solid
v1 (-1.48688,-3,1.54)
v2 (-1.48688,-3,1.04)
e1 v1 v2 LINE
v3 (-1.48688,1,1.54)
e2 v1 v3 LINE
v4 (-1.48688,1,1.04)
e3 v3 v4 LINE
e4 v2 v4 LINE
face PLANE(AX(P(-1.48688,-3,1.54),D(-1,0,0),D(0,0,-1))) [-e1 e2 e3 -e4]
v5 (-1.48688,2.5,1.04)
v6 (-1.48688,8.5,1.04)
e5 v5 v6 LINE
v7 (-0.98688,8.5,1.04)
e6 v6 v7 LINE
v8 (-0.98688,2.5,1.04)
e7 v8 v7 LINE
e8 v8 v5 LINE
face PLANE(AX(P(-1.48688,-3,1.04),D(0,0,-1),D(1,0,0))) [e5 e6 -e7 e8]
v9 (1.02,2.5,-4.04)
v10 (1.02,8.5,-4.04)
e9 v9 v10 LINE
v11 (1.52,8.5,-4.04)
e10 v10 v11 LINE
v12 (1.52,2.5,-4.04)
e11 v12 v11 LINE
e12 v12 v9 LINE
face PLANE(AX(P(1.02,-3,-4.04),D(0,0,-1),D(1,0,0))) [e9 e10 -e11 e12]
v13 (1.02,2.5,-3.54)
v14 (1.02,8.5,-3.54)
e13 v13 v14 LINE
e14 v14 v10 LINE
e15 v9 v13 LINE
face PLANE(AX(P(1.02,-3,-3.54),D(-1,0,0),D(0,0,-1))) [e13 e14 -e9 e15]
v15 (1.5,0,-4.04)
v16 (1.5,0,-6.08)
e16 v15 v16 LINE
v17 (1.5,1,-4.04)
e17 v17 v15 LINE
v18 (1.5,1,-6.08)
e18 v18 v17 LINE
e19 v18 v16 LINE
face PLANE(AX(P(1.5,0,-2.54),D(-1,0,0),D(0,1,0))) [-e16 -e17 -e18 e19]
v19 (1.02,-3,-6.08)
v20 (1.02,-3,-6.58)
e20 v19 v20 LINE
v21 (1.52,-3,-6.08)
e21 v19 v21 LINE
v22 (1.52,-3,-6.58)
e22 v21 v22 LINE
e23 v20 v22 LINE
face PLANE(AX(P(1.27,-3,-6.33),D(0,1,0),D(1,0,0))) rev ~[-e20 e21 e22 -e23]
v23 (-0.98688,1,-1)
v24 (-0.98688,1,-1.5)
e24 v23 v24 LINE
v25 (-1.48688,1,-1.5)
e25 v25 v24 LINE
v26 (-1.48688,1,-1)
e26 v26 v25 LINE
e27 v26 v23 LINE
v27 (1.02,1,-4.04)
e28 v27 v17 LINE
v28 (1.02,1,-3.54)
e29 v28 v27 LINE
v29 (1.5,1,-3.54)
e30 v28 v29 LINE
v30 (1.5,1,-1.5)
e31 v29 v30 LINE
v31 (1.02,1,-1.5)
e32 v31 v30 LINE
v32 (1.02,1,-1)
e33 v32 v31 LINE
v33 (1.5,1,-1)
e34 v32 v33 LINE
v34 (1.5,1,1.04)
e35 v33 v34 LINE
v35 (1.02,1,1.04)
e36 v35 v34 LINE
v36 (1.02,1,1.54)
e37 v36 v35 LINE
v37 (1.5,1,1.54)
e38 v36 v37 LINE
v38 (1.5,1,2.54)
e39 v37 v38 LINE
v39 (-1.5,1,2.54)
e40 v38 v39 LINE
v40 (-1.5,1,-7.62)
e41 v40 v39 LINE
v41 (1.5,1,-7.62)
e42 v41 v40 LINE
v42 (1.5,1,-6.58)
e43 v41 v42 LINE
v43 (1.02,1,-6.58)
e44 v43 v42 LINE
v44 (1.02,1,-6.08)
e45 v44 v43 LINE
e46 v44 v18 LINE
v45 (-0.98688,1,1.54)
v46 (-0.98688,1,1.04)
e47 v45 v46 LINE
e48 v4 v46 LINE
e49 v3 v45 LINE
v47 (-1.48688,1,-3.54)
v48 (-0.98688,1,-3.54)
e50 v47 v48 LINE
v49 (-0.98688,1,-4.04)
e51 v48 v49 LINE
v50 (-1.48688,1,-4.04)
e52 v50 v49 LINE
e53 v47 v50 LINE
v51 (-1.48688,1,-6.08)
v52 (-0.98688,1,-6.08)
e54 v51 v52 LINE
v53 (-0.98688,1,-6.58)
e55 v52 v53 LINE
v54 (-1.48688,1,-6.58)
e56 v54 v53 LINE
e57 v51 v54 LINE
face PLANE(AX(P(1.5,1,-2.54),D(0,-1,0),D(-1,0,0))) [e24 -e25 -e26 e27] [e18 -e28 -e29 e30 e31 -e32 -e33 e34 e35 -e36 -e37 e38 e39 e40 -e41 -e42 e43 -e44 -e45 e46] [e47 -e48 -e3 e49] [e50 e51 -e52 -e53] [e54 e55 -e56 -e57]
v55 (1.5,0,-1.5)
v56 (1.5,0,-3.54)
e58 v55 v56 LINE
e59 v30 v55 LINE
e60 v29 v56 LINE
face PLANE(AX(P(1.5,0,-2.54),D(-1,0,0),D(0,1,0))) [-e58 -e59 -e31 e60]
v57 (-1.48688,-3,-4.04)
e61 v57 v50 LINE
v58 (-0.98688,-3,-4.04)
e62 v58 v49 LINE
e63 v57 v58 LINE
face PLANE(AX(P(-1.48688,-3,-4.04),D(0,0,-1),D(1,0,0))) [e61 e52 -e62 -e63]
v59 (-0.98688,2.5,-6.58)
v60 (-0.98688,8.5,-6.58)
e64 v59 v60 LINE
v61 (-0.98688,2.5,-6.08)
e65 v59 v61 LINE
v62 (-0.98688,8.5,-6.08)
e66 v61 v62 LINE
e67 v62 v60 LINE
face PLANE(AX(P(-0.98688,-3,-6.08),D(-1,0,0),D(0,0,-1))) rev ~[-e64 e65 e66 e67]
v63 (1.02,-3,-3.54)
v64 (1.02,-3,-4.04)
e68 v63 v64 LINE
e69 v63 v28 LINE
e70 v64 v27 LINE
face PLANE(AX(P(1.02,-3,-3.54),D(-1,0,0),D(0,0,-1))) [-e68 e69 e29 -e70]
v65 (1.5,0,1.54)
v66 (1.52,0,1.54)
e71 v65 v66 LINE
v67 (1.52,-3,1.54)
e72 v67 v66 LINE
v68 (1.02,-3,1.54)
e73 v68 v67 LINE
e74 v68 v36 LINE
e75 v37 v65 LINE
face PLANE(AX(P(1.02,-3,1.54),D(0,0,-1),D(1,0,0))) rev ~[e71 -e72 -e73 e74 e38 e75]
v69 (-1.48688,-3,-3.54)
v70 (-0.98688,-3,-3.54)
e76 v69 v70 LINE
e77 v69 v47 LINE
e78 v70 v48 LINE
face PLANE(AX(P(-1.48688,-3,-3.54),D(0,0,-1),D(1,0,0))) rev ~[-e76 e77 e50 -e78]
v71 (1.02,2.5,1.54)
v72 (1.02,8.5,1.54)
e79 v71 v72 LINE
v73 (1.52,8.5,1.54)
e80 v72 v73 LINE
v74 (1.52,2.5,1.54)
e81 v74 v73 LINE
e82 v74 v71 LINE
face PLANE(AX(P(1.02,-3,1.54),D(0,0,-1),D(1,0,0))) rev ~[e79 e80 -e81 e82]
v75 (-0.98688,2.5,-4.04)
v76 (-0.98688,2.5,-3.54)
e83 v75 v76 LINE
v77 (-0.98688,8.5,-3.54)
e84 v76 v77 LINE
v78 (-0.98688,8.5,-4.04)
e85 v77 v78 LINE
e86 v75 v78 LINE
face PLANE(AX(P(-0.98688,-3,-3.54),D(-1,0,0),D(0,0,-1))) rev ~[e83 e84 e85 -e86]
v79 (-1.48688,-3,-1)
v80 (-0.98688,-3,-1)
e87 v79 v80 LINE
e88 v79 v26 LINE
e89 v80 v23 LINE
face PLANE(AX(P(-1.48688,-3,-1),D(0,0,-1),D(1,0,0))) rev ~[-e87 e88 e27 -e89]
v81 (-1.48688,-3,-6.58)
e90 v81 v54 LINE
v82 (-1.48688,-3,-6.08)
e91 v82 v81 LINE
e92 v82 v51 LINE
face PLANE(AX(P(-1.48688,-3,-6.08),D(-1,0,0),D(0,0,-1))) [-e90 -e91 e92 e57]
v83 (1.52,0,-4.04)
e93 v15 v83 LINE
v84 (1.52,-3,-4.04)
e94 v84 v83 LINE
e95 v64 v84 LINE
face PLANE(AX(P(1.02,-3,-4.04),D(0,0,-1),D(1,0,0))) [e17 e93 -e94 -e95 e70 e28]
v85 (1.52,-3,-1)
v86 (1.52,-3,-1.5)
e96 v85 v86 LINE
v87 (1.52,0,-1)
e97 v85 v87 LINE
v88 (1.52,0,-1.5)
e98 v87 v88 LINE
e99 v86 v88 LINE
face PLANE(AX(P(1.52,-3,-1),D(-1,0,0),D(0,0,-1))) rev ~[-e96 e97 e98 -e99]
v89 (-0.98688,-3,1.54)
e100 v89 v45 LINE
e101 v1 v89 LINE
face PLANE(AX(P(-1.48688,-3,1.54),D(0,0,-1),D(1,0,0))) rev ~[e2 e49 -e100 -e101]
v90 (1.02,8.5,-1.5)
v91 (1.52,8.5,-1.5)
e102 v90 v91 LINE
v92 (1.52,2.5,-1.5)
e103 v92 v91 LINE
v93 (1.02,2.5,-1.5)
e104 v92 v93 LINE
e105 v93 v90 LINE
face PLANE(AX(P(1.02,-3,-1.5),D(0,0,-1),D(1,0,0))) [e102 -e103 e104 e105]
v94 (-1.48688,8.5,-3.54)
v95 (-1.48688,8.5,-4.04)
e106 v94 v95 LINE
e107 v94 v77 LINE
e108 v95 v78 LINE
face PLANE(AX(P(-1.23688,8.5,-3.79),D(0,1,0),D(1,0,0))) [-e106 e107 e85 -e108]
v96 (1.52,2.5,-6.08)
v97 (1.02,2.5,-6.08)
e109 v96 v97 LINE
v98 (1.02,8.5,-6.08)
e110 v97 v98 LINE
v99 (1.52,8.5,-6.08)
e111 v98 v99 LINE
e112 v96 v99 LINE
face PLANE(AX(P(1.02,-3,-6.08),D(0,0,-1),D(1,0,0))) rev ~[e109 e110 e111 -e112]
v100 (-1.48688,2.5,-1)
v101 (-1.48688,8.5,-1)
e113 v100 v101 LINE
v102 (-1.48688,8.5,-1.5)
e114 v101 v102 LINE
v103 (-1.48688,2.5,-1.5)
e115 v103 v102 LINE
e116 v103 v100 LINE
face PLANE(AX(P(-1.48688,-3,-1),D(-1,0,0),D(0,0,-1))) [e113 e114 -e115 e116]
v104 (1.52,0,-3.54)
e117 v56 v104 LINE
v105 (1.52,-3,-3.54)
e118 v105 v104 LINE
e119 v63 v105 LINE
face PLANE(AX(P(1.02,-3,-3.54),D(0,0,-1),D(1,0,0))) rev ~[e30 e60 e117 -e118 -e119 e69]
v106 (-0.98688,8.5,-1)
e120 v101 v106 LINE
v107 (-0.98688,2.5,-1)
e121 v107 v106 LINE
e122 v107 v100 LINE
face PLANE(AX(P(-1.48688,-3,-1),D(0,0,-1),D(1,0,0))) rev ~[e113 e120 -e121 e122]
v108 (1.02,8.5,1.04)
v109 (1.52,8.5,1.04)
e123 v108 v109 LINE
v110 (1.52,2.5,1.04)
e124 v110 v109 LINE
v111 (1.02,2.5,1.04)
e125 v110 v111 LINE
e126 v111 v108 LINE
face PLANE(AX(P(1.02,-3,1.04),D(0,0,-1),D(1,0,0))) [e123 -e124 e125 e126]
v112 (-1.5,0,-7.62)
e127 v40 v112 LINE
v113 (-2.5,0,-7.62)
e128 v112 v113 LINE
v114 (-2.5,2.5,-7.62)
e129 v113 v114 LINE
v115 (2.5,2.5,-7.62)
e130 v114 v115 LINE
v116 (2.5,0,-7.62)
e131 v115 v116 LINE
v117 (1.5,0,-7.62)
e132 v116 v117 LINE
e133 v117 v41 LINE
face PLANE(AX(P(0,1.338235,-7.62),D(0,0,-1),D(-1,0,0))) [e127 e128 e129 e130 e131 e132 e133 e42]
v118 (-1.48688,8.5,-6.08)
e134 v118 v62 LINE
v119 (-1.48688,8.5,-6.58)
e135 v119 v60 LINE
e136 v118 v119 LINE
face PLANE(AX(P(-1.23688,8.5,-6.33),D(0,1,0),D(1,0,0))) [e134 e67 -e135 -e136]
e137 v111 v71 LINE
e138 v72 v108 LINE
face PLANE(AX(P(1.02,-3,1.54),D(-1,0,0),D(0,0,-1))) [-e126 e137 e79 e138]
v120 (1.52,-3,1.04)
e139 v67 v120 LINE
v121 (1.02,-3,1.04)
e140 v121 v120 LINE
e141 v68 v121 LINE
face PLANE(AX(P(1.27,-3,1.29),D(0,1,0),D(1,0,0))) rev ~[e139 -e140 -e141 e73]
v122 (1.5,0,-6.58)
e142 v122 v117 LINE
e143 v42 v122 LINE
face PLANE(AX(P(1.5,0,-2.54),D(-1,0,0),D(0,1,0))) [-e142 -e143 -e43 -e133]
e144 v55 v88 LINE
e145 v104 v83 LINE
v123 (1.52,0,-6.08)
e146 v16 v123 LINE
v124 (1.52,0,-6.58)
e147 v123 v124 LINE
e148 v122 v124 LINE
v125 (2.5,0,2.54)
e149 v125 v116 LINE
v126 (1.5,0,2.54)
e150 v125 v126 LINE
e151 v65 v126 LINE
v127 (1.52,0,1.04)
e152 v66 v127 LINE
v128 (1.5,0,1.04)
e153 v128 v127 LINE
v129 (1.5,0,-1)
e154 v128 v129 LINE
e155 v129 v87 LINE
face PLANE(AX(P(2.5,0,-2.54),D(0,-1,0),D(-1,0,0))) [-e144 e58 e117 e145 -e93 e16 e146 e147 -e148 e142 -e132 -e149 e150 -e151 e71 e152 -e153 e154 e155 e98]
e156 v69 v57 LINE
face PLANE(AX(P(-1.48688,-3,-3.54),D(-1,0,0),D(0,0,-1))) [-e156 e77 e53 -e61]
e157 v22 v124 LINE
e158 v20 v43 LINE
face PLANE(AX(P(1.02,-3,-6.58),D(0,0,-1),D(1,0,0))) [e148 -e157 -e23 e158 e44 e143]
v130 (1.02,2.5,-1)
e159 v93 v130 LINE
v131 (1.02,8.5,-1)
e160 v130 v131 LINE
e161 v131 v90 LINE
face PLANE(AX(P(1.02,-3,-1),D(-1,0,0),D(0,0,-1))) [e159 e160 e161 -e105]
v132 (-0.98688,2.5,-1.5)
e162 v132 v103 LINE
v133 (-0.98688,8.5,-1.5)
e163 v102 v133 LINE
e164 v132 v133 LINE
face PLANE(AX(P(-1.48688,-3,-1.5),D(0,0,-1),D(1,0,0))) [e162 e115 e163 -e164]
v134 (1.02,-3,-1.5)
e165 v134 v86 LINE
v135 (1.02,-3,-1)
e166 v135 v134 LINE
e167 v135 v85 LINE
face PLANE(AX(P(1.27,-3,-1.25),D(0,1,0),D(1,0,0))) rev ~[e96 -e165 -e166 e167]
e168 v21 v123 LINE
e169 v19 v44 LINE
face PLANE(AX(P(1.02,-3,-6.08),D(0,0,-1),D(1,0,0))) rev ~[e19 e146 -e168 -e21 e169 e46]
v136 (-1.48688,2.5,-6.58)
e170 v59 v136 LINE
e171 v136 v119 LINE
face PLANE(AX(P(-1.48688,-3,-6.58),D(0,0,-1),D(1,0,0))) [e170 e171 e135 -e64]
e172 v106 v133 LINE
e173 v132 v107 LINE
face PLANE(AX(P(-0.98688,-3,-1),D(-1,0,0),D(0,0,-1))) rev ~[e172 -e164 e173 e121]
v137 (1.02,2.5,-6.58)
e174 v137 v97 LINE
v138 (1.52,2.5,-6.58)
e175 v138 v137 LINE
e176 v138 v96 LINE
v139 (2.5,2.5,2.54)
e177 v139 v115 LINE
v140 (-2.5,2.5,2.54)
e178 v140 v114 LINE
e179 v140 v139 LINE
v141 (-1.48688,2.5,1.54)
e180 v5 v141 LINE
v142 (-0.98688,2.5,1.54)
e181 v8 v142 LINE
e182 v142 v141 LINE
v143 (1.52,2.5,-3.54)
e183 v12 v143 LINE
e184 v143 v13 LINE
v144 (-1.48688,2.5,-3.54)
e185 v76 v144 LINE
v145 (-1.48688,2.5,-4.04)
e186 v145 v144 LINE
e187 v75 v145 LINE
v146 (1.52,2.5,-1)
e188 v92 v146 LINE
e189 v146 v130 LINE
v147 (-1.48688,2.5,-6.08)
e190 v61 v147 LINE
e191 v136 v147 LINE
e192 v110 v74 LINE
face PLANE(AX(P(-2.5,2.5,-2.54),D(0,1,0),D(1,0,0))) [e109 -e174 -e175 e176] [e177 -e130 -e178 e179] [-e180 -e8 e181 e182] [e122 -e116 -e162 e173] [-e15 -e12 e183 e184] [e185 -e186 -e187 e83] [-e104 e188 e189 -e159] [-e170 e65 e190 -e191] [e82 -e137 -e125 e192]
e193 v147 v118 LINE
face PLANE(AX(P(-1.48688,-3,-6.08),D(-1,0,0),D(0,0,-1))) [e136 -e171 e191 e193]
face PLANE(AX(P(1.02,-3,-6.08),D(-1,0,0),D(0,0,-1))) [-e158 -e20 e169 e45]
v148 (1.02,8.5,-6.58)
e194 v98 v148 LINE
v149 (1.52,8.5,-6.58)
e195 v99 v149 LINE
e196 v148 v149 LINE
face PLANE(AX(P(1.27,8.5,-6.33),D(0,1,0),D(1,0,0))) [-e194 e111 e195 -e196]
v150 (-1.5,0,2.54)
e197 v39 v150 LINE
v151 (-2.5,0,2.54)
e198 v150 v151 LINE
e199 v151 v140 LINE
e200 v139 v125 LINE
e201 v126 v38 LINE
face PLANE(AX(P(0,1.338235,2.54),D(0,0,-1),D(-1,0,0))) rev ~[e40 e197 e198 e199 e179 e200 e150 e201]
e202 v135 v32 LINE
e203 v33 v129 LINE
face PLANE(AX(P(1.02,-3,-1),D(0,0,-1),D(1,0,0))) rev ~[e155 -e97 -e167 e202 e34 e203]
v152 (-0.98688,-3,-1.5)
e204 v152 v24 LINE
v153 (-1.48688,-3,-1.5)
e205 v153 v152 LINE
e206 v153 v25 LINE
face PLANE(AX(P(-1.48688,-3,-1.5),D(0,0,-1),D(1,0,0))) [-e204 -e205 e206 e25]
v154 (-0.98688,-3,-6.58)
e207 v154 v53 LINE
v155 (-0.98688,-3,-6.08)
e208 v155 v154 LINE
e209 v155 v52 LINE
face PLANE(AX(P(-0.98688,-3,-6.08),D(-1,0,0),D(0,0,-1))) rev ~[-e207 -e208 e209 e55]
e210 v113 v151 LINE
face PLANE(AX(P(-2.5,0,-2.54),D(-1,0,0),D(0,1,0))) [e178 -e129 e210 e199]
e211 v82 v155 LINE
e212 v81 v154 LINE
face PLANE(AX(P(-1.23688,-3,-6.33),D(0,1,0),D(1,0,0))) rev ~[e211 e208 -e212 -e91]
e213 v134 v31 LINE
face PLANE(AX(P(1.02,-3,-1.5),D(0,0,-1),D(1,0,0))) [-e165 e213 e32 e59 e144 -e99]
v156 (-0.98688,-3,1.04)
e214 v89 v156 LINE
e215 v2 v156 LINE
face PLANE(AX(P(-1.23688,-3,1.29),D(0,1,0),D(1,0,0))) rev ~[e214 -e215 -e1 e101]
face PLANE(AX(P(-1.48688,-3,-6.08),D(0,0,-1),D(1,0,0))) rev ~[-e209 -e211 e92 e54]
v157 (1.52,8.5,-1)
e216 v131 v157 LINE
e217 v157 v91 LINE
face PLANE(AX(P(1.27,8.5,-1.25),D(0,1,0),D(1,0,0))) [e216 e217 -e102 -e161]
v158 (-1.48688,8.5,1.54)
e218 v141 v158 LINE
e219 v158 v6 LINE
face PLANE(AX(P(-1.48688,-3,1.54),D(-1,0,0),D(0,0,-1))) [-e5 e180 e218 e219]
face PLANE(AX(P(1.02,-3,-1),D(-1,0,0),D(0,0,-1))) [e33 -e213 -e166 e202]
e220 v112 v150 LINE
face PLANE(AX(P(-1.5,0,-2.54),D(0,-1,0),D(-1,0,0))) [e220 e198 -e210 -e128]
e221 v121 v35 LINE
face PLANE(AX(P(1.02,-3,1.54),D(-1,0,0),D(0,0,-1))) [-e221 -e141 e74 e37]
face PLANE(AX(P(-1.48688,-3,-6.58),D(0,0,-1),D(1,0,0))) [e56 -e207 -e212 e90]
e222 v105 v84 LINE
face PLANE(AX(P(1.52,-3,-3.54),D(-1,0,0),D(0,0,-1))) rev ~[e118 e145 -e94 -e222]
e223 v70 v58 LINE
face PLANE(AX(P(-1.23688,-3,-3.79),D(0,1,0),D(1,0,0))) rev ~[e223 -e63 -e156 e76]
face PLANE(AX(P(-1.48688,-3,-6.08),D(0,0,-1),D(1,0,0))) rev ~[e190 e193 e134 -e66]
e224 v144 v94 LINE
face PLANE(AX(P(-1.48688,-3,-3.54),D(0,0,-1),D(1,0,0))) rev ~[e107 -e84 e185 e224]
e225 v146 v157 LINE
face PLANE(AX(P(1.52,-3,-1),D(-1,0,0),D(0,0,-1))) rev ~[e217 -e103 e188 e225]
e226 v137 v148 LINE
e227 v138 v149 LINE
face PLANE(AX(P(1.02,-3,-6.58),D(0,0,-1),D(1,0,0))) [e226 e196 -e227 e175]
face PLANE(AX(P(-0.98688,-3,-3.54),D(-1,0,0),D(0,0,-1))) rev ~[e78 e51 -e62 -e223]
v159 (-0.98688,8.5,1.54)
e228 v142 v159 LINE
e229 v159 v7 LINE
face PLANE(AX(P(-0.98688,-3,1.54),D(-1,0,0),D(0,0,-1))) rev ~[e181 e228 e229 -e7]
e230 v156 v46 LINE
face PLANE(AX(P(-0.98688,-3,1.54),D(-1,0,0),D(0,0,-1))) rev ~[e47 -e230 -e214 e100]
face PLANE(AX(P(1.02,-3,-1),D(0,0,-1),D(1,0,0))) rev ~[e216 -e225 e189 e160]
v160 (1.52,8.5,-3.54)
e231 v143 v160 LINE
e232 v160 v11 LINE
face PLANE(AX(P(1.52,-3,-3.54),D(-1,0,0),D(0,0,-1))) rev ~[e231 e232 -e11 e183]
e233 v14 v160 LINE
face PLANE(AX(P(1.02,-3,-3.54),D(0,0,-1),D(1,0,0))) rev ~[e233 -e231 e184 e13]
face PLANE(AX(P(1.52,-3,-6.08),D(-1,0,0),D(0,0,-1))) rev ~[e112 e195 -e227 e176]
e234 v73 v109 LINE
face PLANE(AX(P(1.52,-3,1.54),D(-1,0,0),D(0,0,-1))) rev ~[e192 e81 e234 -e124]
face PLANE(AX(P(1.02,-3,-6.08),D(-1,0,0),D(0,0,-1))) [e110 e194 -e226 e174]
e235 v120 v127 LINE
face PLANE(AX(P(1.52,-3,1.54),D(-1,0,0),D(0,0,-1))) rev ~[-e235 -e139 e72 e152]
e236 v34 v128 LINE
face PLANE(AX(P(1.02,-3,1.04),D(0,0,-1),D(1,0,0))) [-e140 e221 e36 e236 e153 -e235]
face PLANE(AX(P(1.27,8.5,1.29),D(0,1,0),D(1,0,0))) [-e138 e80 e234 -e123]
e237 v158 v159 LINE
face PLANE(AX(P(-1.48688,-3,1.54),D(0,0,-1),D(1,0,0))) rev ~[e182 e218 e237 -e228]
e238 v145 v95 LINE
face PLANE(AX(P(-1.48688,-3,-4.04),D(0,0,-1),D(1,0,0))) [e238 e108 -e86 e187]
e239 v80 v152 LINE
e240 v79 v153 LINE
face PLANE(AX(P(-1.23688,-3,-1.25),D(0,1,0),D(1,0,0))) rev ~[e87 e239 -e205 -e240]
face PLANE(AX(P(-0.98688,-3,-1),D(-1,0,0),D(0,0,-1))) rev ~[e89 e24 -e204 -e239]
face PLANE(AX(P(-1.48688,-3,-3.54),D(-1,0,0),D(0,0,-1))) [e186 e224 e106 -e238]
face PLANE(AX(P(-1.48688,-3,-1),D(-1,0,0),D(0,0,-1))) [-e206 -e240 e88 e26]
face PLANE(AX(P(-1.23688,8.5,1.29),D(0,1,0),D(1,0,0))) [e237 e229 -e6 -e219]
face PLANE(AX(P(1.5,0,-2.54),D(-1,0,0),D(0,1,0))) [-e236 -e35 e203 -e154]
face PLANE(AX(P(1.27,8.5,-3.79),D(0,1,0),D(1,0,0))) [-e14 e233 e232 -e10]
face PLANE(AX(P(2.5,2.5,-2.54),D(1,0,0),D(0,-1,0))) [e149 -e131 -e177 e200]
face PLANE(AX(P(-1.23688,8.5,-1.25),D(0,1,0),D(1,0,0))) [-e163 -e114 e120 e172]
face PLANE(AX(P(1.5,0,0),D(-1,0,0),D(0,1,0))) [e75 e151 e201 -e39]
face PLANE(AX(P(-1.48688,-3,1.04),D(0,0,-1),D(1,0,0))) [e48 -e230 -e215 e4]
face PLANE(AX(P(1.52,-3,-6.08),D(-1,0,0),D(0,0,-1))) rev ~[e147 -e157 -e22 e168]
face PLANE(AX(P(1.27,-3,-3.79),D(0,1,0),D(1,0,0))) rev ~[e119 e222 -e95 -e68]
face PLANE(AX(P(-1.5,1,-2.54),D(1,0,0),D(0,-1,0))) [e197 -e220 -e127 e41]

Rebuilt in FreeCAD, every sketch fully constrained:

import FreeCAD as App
import Part
import Sketcher

V = App.Vector
Q = App.Units.Quantity

doc = App.newDocument("Part")
params = doc.addObject("Spreadsheet::Sheet", "Params")
for row, (alias, value) in enumerate([
    ("sketch1_width", "1 mm"),
    ("sketch1_width2", "3 mm"),
    ("sketch1_height", "2.5 mm"),
    ("pad1_length", "2.54 mm"),
    ("sketch2_width", "0.5 mm"),
    ("pad2_length", "11.5 mm"),
    ("linearpattern_pitch", "2.54 mm"),
], start=1):
    params.set(f"A{row}", alias)
    params.set(f"B{row}", "=" + value)
    params.setAlias(f"B{row}", alias)

body = doc.addObject("PartDesign::Body", "Body")

# Sketch on XY plane
sketch1 = body.newObject("Sketcher::SketchObject", "Sketch")
sketch1.AttachmentSupport = (doc.getObject("XY_Plane"), [""])
sketch1.MapMode = "FlatFace"
sketch1.addGeometry([
    Part.LineSegment(V(-2.5, 2.5, 0), V(-2.5, 0, 0)),  # 0
    Part.LineSegment(V(-2.5, 0, 0), V(-1.5, 0, 0)),  # 1
    Part.LineSegment(V(-1.5, 0, 0), V(-1.5, 1, 0)),  # 2
    Part.LineSegment(V(-1.5, 1, 0), V(1.5, 1, 0)),  # 3
    Part.LineSegment(V(1.5, 1, 0), V(1.5, 0, 0)),  # 4
    Part.LineSegment(V(1.5, 0, 0), V(2.5, 0, 0)),  # 5
    Part.LineSegment(V(2.5, 0, 0), V(2.5, 2.5, 0)),  # 6
    Part.LineSegment(V(2.5, 2.5, 0), V(-2.5, 2.5, 0)),  # 7
], False)
sketch1.addConstraint([
    Sketcher.Constraint("Coincident", 0, 2, 1, 1),
    Sketcher.Constraint("Coincident", 1, 2, 2, 1),
    Sketcher.Constraint("Coincident", 2, 2, 3, 1),
    Sketcher.Constraint("Coincident", 3, 2, 4, 1),
    Sketcher.Constraint("Coincident", 4, 2, 5, 1),
    Sketcher.Constraint("Coincident", 5, 2, 6, 1),
    Sketcher.Constraint("Coincident", 6, 2, 7, 1),
    Sketcher.Constraint("Coincident", 7, 2, 0, 1),
    Sketcher.Constraint("Vertical", 0),
    Sketcher.Constraint("Horizontal", 1),
    Sketcher.Constraint("Vertical", 2),
    Sketcher.Constraint("Horizontal", 3),
    Sketcher.Constraint("Vertical", 4),
    Sketcher.Constraint("Horizontal", 5),
    Sketcher.Constraint("Vertical", 6),
    Sketcher.Constraint("Horizontal", 7),
    Sketcher.Constraint("Symmetric", 1, 2, 4, 2, -1, 1),
    Sketcher.Constraint("Symmetric", 0, 2, 5, 2, -2),
    Sketcher.Constraint("Equal", 5, 2),
    Sketcher.Constraint("DistanceX", 1, 1, 1, 2, Q("1 mm")),
    Sketcher.Constraint("DistanceX", 3, 1, 3, 2, Q("3 mm")),
    Sketcher.Constraint("DistanceY", 0, 2, 0, 1, Q("2.5 mm")),
])
sketch1.setExpression("Constraints[19]", "Params.sketch1_width")
sketch1.setExpression("Constraints[20]", "Params.sketch1_width2")
sketch1.setExpression("Constraints[21]", "Params.sketch1_height")
pad1 = body.newObject("PartDesign::Pad", "Pad")
pad1.Profile = sketch1
pad1.setExpression("Length", "Params.pad1_length")

# Sketch on XZ plane
sketch2 = body.newObject("Sketcher::SketchObject", "Sketch001")
sketch2.AttachmentSupport = (doc.getObject("XZ_Plane"), [""])
sketch2.MapMode = "FlatFace"
sketch2.AttachmentOffset = App.Placement(V(0, 0, 3), App.Rotation())
sketch2.addGeometry([
    Part.LineSegment(V(-1.49, 1.04, 0), V(-1.49, 1.54, 0)),  # 0
    Part.LineSegment(V(-1.49, 1.54, 0), V(-0.99, 1.54, 0)),  # 1
    Part.LineSegment(V(-0.99, 1.54, 0), V(-0.99, 1.04, 0)),  # 2
    Part.LineSegment(V(-0.99, 1.04, 0), V(-1.49, 1.04, 0)),  # 3
    Part.LineSegment(V(1.02, 1.04, 0), V(1.02, 1.54, 0)),  # 4
    Part.LineSegment(V(1.02, 1.54, 0), V(1.52, 1.54, 0)),  # 5
    Part.LineSegment(V(1.52, 1.54, 0), V(1.52, 1.04, 0)),  # 6
    Part.LineSegment(V(1.52, 1.04, 0), V(1.02, 1.04, 0)),  # 7
], False)
sketch2.addConstraint([
    Sketcher.Constraint("Coincident", 0, 2, 1, 1),
    Sketcher.Constraint("Coincident", 1, 2, 2, 1),
    Sketcher.Constraint("Coincident", 2, 2, 3, 1),
    Sketcher.Constraint("Coincident", 3, 2, 0, 1),
    Sketcher.Constraint("Coincident", 4, 2, 5, 1),
    Sketcher.Constraint("Coincident", 5, 2, 6, 1),
    Sketcher.Constraint("Coincident", 6, 2, 7, 1),
    Sketcher.Constraint("Coincident", 7, 2, 4, 1),
    Sketcher.Constraint("Vertical", 0),
    Sketcher.Constraint("Horizontal", 1),
    Sketcher.Constraint("Vertical", 2),
    Sketcher.Constraint("Horizontal", 3),
    Sketcher.Constraint("Vertical", 4),
    Sketcher.Constraint("Horizontal", 5),
    Sketcher.Constraint("Vertical", 6),
    Sketcher.Constraint("Horizontal", 7),
    Sketcher.Constraint("Horizontal", 1, 2, 4, 2),
    Sketcher.Constraint("Horizontal", 3, 2, 6, 2),
    Sketcher.Constraint("Equal", 3, 5),
    Sketcher.Constraint("Equal", 7, 0),
    Sketcher.Constraint("DistanceX", 1, 1, 1, 2, Q("0.5 mm")),
    Sketcher.Constraint("DistanceY", -1, 1, 0, 2, Q("1.54 mm")),
    Sketcher.Constraint("DistanceX", -1, 1, 4, 2, Q("1.02 mm")),
    Sketcher.Constraint("DistanceX", 0, 2, -1, 1, Q("1.48688 mm")),
])
sketch2.setExpression("Constraints[20]", "Params.sketch2_width")
pad2 = body.newObject("PartDesign::Pad", "Pad001")
pad2.Profile = sketch2
pad2.setExpression("Length", "Params.pad2_length")
pad2.Reversed = True
doc.recompute()

linearpattern = body.newObject("PartDesign::LinearPattern", "LinearPattern")
linearpattern.Originals = [pad1, pad2]
linearpattern.Direction = (doc.getObject("Z_Axis"), [""])
linearpattern.Mode = "offset"
linearpattern.setExpression("Offset", "Params.linearpattern_pitch")
linearpattern.Occurrences = 4
linearpattern.Reversed = True
body.Tip = linearpattern

doc.recompute()
